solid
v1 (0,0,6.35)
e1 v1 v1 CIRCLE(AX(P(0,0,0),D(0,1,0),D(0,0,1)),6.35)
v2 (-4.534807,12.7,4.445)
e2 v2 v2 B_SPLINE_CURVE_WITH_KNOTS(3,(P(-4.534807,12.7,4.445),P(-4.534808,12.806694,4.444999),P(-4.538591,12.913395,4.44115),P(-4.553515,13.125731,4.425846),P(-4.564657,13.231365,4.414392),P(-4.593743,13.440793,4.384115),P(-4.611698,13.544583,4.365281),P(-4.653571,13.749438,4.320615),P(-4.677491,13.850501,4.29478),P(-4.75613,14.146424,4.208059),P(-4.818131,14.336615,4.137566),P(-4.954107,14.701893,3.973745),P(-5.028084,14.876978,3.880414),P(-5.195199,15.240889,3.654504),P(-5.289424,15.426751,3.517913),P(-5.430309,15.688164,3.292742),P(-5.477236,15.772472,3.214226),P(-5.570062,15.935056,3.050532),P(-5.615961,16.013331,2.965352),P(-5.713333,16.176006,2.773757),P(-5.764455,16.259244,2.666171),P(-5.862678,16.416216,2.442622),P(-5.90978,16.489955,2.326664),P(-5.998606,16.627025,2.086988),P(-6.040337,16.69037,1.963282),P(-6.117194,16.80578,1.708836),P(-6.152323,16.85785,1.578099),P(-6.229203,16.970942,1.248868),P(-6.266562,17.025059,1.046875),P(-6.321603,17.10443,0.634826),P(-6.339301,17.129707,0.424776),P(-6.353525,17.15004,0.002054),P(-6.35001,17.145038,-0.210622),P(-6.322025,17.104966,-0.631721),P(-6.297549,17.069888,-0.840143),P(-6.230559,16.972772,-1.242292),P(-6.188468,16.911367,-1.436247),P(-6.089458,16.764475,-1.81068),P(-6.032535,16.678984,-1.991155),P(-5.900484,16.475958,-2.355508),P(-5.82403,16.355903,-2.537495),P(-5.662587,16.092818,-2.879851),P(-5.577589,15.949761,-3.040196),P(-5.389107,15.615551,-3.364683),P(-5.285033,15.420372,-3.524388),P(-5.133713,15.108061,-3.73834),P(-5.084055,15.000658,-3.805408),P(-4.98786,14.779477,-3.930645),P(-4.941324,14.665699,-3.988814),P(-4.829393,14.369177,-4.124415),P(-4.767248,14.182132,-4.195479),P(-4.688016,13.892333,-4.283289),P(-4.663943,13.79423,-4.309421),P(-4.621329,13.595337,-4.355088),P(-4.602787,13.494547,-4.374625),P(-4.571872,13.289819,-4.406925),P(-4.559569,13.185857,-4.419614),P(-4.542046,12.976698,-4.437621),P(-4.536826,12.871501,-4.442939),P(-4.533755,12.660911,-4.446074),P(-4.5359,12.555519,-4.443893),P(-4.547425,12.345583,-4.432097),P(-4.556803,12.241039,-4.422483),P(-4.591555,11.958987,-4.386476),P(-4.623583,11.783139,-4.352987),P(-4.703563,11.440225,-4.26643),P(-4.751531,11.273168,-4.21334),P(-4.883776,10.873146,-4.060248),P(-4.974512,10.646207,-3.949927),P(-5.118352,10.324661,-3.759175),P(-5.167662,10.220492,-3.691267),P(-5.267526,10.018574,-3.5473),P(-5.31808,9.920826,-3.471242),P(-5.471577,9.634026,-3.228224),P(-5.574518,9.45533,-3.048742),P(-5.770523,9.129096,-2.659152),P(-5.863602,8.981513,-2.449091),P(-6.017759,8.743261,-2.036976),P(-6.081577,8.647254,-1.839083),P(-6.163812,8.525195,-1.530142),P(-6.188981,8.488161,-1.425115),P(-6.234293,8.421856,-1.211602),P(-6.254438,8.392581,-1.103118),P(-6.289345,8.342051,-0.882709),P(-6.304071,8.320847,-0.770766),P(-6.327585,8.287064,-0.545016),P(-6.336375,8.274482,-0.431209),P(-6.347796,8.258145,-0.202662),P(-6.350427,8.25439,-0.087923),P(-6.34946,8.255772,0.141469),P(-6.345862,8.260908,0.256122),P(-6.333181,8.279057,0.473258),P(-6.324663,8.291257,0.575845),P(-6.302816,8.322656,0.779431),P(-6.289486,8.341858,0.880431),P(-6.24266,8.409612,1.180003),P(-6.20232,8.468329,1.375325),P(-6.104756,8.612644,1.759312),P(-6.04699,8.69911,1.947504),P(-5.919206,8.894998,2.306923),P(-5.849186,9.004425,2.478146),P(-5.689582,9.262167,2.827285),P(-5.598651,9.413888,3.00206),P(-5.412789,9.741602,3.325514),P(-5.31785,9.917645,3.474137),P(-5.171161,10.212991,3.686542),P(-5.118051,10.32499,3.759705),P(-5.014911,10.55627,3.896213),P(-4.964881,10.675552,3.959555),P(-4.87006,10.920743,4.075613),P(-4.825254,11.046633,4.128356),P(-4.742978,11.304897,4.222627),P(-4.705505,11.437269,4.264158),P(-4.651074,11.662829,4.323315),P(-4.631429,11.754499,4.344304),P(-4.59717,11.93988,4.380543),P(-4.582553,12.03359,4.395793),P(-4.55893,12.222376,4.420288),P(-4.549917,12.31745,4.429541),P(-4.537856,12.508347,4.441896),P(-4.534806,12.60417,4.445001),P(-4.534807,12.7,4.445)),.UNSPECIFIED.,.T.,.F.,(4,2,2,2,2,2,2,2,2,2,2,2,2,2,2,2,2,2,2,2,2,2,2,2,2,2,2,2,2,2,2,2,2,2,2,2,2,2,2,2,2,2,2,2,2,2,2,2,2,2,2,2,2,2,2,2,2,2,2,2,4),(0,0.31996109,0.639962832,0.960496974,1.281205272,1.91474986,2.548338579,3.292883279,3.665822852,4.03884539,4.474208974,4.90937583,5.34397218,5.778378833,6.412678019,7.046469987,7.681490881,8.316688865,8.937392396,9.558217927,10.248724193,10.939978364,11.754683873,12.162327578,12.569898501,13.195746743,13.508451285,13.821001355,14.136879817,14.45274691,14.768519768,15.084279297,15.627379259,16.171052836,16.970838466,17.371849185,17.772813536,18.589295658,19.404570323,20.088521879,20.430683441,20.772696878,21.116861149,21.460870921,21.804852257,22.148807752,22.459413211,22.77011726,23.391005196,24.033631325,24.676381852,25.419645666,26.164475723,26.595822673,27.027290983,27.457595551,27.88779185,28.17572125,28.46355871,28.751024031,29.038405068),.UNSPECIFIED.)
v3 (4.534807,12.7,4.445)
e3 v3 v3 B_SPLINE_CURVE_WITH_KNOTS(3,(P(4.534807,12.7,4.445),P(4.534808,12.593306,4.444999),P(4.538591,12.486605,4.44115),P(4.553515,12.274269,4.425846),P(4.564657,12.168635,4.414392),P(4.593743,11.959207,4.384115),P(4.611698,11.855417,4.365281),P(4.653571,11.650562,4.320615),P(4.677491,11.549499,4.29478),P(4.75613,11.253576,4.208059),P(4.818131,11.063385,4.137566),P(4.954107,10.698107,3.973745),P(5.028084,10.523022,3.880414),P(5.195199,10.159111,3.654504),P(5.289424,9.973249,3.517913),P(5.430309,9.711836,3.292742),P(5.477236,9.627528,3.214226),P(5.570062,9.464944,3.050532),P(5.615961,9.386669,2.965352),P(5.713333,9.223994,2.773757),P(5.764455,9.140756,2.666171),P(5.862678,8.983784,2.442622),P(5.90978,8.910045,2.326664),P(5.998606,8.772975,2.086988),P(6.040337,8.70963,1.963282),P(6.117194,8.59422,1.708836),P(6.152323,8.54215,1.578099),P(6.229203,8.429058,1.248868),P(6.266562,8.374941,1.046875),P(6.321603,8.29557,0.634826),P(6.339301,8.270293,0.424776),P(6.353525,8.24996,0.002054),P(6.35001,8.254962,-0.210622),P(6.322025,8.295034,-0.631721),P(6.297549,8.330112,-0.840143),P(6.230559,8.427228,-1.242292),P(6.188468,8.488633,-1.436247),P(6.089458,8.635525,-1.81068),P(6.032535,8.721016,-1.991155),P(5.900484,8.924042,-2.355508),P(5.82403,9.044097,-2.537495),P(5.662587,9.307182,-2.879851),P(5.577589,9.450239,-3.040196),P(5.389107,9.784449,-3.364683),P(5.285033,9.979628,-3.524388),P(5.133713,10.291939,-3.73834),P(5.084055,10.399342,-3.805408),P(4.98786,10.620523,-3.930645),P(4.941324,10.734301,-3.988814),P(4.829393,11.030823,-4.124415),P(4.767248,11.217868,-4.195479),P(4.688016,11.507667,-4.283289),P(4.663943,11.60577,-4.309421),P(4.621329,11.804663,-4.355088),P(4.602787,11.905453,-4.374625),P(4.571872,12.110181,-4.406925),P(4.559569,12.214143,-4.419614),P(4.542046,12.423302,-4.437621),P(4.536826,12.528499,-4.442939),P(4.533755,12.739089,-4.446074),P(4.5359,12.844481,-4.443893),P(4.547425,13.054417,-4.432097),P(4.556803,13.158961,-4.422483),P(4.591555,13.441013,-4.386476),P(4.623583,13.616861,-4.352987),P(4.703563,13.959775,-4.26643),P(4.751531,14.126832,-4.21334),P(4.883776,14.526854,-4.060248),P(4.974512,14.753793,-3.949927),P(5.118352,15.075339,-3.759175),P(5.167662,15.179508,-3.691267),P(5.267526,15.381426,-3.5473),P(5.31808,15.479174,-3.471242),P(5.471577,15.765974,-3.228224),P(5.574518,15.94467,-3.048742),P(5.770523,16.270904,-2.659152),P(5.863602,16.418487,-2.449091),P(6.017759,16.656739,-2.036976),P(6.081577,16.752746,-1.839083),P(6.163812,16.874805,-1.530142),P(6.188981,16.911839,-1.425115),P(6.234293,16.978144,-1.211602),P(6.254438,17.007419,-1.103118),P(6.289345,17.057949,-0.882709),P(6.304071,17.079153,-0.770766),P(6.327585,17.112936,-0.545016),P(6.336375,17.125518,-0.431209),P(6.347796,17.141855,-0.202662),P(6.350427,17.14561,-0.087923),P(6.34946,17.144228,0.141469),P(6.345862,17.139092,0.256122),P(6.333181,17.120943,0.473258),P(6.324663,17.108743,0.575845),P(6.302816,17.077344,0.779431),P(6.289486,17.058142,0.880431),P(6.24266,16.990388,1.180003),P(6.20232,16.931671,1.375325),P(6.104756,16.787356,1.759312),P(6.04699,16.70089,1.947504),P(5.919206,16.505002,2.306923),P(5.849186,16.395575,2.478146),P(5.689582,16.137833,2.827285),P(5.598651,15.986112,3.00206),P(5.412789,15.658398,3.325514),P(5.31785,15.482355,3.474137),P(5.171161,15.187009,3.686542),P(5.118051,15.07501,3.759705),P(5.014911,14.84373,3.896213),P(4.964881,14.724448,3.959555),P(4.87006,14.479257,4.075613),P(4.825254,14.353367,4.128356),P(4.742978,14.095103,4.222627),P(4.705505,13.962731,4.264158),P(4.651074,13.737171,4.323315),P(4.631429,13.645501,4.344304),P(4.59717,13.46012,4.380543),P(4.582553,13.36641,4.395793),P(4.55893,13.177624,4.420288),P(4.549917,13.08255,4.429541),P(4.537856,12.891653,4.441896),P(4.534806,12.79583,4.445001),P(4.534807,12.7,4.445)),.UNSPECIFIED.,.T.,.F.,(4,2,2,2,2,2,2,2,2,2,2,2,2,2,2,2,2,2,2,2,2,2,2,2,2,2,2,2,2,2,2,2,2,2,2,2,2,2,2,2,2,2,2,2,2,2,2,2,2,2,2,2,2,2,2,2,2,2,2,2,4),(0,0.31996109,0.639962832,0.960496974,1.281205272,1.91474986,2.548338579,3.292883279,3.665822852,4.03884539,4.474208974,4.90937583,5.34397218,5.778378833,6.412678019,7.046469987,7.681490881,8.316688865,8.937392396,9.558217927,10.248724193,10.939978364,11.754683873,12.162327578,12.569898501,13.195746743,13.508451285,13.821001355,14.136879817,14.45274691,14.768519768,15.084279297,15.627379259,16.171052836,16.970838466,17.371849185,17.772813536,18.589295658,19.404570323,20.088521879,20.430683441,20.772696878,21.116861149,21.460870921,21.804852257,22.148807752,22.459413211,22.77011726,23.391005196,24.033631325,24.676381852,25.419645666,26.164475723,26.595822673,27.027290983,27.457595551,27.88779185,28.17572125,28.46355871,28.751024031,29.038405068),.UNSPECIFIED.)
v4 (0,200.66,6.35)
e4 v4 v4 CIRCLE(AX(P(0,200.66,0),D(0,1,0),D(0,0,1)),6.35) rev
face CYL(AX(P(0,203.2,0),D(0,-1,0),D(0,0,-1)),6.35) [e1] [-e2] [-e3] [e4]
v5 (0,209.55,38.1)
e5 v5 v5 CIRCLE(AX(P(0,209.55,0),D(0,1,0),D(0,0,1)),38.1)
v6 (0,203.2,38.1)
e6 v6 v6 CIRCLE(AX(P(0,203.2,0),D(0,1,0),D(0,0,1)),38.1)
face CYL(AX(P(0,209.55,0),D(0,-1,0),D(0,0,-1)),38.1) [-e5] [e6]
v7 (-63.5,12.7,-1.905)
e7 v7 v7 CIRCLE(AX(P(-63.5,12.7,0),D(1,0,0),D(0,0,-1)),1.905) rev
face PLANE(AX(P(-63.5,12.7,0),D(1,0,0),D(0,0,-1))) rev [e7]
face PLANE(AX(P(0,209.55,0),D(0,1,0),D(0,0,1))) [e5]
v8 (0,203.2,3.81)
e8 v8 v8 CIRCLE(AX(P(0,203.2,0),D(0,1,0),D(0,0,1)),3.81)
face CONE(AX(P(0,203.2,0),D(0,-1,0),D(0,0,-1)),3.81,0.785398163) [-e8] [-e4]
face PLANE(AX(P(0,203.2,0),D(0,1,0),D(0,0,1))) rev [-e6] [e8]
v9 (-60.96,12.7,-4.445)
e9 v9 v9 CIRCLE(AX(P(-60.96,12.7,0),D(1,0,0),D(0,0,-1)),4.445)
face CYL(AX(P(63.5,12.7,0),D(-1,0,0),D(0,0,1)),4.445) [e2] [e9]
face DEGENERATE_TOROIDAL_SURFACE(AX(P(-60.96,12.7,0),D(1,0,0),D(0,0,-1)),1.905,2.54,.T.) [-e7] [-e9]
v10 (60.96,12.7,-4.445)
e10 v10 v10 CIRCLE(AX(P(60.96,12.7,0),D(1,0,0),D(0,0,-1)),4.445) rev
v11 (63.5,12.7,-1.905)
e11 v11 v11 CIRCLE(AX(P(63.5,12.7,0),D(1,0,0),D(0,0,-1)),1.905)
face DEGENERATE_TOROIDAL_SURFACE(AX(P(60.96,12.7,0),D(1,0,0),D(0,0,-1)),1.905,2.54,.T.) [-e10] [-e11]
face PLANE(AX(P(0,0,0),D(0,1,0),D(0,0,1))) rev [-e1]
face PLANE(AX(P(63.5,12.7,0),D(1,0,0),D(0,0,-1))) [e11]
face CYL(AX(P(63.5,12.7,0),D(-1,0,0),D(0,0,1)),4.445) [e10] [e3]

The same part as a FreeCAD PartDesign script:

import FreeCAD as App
import Part
import Sketcher

V = App.Vector
Q = App.Units.Quantity


def edges_at(feature, points):
    """Names of the edges that pass closest to the given points."""
    edges = feature.Shape.Edges
    near = lambda p: min(range(len(edges)), key=lambda i: edges[i].distToShape(Part.Vertex(*p))[0])
    return sorted({f"Edge{near(p) + 1}" for p in points})

doc = App.newDocument("Part")
body = doc.addObject("PartDesign::Body", "Body")

# Sketch on XZ plane
sketch1 = doc.addObject("Sketcher::SketchObject", "Sketch")
body.addObject(sketch1)
sketch1.AttachmentSupport = (doc.XZ_Plane, [""])
sketch1.MapMode = "FlatFace"
sketch1.addGeometry(Part.Circle(V(0, 0, 0), V(0, 0, 1), 6), False)
sketch1.addConstraint(Sketcher.Constraint("Coincident", 0, 3, -1, 1))
sketch1.addConstraint(Sketcher.Constraint("Diameter", 0, Q("0.5 in")))
pad1 = doc.addObject("PartDesign::Pad", "Pad")
body.addObject(pad1)
pad1.Profile = sketch1
pad1.Length = Q("8 in")
pad1.Reversed = True
doc.recompute()

chamfer = doc.addObject("PartDesign::Chamfer", "Chamfer")
body.addObject(chamfer)
chamfer.Base = (pad1, edges_at(pad1, [(0, 203.2, -6.35)]))
chamfer.Size = Q("0.1 in")

# Sketch on XZ plane
sketch2 = doc.addObject("Sketcher::SketchObject", "Sketch001")
body.addObject(sketch2)
sketch2.AttachmentSupport = (doc.XZ_Plane, [""])
sketch2.MapMode = "FlatFace"
sketch2.AttachmentOffset = App.Placement(V(0, 0, -8 * 25.4), App.Rotation())
sketch2.addGeometry(Part.Circle(V(0, 0, 0), V(0, 0, 1), 38), False)
sketch2.addConstraint(Sketcher.Constraint("Coincident", 0, 3, -1, 1))
sketch2.addConstraint(Sketcher.Constraint("Diameter", 0, Q("3 in")))
pad2 = doc.addObject("PartDesign::Pad", "Pad001")
body.addObject(pad2)
pad2.Profile = sketch2
pad2.Length = Q("0.25 in")
pad2.Reversed = True

# Sketch on YZ plane
sketch3 = doc.addObject("Sketcher::SketchObject", "Sketch002")
body.addObject(sketch3)
sketch3.AttachmentSupport = (doc.YZ_Plane, [""])
sketch3.MapMode = "FlatFace"
sketch3.addGeometry(Part.Circle(V(12.7, 0, 0), V(0, 0, 1), 4.4), False)
sketch3.addConstraint(Sketcher.Constraint("PointOnObject", 0, 3, -1))
sketch3.addConstraint(Sketcher.Constraint("Diameter", 0, Q("0.35 in")))
sketch3.addConstraint(Sketcher.Constraint("DistanceX", -1, 1, 0, 3, Q("0.5 in")))
pad3 = doc.addObject("PartDesign::Pad", "Pad002")
body.addObject(pad3)
pad3.Profile = sketch3
pad3.Length = Q("5 in")
pad3.Midplane = True
doc.recompute()

fillet = doc.addObject("PartDesign::Fillet", "Fillet")
body.addObject(fillet)
fillet.Base = (pad3, edges_at(pad3, [(-63.5, 12.7, -4.445), (63.5, 12.7, -4.445)]))
fillet.Radius = Q("0.1 in")

doc.recompute()
